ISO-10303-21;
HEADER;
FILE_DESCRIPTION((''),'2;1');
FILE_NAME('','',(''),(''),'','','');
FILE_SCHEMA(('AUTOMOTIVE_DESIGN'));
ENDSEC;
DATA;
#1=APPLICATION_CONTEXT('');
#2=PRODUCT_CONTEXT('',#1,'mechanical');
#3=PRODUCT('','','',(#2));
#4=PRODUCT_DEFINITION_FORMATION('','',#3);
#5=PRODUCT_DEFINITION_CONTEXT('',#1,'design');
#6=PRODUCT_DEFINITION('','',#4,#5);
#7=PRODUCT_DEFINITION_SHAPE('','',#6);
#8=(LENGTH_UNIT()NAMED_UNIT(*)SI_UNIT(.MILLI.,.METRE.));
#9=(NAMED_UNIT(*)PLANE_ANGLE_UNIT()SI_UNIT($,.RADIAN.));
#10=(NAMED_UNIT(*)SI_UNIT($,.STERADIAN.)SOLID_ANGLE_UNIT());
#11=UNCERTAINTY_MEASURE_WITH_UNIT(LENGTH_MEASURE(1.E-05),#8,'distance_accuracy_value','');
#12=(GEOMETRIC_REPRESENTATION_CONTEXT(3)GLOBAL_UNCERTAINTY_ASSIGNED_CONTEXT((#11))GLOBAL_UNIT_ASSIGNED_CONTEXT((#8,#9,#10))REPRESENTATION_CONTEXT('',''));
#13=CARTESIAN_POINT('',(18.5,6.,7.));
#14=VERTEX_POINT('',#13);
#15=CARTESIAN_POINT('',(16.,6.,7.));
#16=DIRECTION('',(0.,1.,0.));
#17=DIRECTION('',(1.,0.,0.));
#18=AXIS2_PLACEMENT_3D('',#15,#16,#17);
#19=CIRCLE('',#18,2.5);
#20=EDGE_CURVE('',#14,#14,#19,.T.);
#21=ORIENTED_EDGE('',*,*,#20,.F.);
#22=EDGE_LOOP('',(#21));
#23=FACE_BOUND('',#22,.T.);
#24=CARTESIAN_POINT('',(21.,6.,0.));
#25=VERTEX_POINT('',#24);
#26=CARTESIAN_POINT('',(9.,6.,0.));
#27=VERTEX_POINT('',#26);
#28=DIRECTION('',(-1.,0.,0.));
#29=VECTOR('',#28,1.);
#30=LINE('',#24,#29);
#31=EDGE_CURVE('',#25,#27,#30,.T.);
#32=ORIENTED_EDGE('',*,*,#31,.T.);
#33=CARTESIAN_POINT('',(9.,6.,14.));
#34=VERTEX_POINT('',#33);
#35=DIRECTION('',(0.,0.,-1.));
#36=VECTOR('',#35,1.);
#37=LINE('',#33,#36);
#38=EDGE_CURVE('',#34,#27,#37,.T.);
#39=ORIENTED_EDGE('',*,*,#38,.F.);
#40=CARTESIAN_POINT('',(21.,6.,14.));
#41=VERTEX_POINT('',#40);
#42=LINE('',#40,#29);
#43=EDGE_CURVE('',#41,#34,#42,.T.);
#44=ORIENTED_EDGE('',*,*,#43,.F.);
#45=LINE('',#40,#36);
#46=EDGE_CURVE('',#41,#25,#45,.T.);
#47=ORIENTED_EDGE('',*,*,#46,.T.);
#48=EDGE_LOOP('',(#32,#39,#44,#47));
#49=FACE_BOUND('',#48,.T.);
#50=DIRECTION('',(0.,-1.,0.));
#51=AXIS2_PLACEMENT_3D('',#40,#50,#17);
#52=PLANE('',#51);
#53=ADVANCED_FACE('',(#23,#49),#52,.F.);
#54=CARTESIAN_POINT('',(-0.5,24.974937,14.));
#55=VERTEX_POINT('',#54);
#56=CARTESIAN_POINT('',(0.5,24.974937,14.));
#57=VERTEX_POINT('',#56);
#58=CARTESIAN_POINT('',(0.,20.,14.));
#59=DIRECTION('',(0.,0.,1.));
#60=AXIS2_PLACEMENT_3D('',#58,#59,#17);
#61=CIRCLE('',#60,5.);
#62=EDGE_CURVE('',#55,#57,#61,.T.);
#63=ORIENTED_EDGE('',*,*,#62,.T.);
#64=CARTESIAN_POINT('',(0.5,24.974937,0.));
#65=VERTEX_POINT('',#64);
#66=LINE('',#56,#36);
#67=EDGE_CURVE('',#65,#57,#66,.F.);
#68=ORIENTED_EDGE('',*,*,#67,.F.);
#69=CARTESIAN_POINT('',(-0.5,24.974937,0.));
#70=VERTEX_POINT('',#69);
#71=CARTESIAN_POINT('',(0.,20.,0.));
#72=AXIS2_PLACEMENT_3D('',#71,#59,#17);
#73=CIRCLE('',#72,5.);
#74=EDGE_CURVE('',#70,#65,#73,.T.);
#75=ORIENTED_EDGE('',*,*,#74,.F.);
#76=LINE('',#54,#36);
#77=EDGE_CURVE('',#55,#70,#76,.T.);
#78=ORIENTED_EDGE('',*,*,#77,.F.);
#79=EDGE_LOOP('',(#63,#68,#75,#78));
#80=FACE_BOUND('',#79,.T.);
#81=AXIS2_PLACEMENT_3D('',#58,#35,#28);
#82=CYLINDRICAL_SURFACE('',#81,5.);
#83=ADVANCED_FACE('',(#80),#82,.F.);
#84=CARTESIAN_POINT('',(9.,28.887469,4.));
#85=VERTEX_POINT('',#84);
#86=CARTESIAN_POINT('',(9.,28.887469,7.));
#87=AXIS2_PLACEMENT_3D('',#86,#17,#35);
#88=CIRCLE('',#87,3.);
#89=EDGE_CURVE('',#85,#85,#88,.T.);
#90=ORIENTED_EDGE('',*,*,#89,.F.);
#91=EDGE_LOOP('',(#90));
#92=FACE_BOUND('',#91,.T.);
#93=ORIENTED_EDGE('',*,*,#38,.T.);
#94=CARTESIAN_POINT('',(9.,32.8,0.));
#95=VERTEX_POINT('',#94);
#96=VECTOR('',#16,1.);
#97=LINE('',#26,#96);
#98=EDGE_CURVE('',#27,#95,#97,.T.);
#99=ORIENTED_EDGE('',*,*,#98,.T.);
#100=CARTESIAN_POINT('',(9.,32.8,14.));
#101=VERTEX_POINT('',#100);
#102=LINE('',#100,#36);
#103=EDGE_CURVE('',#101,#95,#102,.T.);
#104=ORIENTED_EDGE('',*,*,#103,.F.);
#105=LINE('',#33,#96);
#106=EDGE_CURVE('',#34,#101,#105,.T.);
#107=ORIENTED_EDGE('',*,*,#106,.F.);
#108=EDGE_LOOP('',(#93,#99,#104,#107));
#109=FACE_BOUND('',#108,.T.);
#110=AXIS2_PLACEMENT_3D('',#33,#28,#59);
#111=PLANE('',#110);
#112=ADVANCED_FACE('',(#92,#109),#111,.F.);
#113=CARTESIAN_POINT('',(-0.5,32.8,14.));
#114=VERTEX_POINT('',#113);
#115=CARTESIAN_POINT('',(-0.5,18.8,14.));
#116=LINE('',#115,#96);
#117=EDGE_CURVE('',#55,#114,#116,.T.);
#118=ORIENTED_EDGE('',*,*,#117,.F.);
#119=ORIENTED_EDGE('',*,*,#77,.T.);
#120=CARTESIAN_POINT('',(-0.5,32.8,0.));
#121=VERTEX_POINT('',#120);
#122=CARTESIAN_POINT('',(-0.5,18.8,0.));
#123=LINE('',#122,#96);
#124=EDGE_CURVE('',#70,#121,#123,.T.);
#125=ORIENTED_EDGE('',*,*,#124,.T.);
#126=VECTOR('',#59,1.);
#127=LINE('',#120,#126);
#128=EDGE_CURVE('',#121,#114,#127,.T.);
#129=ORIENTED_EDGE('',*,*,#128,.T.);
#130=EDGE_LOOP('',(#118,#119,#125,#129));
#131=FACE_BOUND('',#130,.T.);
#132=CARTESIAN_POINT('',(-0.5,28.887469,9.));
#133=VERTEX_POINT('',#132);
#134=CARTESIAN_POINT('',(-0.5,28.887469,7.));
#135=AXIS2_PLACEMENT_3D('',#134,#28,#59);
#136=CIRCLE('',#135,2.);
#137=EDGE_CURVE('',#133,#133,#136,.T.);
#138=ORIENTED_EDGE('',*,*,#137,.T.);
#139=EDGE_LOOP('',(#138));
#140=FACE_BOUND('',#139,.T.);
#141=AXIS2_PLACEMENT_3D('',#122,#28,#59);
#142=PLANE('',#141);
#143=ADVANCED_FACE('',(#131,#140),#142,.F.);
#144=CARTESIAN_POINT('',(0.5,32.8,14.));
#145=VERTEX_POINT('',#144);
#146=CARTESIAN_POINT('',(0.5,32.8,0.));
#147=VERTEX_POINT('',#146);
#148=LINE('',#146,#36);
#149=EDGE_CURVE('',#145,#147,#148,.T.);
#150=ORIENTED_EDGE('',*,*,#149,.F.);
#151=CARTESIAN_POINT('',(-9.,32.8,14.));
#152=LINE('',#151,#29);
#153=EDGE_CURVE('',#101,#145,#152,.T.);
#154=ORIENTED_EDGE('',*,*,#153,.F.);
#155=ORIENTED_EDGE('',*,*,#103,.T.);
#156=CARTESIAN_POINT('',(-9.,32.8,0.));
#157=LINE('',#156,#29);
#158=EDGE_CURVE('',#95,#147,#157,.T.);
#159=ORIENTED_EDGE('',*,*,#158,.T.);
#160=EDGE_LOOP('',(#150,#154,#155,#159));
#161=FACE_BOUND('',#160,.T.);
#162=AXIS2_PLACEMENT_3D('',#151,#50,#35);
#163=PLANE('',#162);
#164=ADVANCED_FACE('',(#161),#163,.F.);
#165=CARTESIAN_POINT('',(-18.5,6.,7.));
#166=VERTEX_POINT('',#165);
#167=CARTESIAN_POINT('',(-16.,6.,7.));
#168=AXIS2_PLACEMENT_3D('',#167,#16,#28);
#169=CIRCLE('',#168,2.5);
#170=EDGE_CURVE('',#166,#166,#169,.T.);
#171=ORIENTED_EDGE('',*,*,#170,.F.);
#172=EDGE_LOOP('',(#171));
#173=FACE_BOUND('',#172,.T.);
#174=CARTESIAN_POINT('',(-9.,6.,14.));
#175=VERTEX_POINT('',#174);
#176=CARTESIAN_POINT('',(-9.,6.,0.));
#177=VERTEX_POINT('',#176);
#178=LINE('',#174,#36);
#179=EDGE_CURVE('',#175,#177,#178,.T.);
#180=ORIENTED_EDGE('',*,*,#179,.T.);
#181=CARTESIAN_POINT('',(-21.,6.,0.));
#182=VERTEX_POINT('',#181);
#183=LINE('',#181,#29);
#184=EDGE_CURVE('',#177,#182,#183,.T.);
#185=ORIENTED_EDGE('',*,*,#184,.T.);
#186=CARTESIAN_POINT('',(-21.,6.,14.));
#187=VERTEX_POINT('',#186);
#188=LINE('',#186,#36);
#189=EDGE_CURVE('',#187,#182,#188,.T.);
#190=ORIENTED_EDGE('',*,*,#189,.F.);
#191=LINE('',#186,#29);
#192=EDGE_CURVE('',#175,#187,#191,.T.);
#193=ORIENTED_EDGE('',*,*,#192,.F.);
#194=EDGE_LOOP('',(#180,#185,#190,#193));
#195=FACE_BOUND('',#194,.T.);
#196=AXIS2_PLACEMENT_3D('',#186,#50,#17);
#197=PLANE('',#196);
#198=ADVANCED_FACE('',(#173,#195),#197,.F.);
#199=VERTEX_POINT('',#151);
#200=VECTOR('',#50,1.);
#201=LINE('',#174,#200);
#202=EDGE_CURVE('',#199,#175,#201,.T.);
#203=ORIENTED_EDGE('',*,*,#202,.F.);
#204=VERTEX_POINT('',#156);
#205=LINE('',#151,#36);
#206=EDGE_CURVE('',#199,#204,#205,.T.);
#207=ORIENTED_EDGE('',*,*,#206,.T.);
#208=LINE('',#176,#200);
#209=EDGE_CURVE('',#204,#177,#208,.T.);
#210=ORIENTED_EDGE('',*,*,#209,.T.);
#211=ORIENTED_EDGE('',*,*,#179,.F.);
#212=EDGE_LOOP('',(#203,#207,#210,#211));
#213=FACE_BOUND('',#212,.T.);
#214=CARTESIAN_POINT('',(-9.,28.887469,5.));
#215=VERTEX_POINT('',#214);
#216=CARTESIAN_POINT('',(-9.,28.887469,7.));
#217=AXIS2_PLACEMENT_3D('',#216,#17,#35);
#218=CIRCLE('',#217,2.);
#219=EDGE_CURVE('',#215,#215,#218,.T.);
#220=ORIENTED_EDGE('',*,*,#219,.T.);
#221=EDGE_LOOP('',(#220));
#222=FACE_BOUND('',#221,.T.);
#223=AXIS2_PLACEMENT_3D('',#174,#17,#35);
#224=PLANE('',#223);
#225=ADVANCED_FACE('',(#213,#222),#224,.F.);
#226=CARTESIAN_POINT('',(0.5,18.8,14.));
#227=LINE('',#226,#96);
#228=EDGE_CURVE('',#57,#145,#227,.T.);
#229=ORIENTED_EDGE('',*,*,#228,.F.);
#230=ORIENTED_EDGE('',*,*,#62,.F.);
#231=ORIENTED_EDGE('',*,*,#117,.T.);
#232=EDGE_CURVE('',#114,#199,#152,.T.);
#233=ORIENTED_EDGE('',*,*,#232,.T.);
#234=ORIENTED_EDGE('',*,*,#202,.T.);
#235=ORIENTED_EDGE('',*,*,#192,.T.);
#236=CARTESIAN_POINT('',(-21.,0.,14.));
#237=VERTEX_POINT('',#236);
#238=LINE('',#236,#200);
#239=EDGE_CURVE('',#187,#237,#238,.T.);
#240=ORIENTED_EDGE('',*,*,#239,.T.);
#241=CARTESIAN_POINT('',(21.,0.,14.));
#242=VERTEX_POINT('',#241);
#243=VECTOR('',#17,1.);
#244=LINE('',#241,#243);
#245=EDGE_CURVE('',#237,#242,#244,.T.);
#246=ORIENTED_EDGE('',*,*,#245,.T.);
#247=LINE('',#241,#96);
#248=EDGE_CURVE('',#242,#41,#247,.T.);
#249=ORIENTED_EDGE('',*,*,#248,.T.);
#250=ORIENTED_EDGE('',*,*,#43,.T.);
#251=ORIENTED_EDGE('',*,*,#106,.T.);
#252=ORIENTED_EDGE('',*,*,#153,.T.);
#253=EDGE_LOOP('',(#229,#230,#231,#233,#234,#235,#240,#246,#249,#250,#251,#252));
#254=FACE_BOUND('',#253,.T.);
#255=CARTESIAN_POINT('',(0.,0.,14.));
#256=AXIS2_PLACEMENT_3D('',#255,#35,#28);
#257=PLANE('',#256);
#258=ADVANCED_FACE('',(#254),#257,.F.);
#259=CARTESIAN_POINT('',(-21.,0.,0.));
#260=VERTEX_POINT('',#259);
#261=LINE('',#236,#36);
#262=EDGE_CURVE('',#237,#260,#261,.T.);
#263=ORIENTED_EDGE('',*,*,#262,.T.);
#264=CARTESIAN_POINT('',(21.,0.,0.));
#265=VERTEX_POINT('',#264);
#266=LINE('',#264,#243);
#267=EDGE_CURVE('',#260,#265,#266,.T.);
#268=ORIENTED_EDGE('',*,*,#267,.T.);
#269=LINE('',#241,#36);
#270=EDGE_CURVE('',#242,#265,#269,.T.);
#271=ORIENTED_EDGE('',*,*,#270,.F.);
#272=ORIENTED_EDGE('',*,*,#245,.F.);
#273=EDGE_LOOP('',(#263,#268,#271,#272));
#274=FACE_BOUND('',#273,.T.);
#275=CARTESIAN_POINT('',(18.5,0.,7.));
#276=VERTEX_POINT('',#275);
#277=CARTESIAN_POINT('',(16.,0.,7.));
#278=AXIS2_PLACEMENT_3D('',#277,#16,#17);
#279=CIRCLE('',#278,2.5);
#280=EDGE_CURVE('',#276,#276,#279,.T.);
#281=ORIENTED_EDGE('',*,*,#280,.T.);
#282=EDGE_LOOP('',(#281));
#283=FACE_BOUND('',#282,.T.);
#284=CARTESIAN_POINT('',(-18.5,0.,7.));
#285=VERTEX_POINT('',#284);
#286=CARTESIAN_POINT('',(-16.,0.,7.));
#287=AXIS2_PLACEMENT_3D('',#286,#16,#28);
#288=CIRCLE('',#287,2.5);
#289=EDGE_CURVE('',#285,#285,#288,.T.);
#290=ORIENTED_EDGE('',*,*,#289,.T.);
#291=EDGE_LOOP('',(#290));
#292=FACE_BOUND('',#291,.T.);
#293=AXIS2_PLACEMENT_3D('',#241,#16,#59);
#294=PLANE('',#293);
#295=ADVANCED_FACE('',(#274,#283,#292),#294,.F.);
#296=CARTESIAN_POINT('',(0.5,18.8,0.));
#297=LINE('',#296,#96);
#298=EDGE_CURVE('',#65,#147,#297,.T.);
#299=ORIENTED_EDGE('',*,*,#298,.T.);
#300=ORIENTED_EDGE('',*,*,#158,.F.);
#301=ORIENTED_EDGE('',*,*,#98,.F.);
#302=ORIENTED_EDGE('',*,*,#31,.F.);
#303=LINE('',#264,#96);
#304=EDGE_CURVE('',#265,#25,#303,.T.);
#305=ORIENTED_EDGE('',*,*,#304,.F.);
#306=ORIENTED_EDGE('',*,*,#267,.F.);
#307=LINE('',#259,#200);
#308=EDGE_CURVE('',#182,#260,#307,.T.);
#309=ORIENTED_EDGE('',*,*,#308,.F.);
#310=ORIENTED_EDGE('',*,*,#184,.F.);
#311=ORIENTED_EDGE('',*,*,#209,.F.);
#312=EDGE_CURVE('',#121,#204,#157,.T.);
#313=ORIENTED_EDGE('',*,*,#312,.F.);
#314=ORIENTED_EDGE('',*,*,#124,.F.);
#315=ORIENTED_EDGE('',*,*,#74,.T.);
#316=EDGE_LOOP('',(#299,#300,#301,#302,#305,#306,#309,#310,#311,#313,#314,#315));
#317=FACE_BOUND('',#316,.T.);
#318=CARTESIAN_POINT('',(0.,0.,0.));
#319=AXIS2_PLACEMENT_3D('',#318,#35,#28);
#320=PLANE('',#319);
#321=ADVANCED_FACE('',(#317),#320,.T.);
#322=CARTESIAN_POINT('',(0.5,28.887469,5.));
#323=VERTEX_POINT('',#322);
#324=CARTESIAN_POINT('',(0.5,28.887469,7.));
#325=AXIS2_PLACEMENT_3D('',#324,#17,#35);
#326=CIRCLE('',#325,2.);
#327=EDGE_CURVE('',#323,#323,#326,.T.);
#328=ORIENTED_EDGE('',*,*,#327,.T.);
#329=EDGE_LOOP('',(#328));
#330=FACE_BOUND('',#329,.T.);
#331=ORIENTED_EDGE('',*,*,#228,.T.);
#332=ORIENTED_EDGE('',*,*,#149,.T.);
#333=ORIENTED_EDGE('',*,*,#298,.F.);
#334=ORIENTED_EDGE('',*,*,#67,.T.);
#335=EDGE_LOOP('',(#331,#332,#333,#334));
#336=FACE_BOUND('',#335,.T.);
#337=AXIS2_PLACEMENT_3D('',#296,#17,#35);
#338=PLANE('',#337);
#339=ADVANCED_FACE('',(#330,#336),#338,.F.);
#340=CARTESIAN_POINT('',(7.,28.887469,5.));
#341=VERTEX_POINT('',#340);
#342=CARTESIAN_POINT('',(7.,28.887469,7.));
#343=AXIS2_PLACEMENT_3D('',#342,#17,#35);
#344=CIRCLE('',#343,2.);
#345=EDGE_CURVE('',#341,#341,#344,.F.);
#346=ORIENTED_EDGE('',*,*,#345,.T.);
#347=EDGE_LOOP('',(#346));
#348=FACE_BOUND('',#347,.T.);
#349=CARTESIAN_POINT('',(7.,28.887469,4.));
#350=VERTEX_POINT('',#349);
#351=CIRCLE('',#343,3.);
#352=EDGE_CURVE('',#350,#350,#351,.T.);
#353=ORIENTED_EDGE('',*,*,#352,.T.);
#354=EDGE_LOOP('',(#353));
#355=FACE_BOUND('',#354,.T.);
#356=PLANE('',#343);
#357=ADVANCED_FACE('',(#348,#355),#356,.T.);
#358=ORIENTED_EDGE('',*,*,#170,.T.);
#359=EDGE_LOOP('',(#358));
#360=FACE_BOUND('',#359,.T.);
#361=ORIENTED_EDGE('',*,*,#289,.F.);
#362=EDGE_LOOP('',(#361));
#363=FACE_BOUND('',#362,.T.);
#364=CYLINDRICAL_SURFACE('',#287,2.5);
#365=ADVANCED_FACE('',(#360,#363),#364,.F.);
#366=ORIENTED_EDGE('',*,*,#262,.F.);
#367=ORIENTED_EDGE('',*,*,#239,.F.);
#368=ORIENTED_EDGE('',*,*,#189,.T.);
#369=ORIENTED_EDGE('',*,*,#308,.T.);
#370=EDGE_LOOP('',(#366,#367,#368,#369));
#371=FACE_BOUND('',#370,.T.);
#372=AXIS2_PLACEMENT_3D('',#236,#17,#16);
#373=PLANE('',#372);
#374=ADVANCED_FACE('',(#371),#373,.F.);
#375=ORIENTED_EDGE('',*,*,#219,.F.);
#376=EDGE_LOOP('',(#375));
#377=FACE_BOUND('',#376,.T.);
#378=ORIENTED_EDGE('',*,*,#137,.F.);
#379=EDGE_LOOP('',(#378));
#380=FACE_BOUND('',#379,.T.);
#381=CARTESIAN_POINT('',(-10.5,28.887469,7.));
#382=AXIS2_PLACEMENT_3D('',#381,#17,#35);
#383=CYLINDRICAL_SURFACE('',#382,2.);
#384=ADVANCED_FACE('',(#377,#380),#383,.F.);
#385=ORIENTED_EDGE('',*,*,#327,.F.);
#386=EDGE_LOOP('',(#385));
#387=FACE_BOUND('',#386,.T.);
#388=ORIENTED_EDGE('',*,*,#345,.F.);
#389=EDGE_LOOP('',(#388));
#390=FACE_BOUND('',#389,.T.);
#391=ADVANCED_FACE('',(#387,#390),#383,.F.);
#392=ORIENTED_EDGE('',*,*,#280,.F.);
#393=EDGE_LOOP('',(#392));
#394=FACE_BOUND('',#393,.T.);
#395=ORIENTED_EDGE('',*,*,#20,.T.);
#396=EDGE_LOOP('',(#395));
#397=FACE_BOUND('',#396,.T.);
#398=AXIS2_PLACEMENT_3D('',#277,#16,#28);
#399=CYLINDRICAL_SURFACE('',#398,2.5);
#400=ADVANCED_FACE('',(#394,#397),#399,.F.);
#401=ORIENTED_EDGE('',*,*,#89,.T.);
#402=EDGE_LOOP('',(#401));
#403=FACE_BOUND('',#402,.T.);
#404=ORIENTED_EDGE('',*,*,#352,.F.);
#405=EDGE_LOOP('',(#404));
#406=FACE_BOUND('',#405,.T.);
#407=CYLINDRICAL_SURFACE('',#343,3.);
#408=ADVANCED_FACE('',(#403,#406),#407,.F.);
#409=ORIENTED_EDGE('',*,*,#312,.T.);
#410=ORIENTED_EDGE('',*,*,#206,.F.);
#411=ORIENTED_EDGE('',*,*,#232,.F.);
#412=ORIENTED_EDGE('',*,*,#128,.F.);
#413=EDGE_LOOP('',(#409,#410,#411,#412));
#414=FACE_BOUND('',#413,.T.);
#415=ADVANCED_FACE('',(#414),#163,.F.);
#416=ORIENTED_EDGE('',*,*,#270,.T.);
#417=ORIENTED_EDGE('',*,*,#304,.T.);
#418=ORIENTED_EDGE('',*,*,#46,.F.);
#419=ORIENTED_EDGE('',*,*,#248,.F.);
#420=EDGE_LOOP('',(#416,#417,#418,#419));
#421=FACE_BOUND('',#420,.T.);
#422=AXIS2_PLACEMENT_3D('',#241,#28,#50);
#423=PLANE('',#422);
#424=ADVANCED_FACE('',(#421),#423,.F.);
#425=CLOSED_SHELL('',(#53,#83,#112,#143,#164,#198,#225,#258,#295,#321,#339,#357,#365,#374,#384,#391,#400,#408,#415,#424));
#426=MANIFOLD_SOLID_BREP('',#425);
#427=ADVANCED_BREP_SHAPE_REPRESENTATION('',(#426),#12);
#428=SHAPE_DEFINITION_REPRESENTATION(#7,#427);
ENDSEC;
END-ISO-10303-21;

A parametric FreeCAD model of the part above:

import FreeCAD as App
import Part
import Sketcher
Q = App.Units.Quantity


def add_polygon(sketch, points):
    """Adds a closed chain of lines whose ends are joined by coincident constraints."""
    first, n = sketch.GeometryCount, len(points)
    for a, b in zip(points, points[1:] + points[:1]):
        sketch.addGeometry(Part.LineSegment(App.Vector(*a, 0), App.Vector(*b, 0)), False)
    for i in range(n):
        sketch.addConstraint(Sketcher.Constraint("Coincident", first + i, 2, first + (i + 1) % n, 1))

doc = App.newDocument("Part")
body = doc.addObject("PartDesign::Body", "Body")

sketch1 = body.newObject("Sketcher::SketchObject", "Sketch")
sketch1.AttachmentSupport = (doc.getObject("XY_Plane"), [""])
sketch1.MapMode = "FlatFace"
add_polygon(sketch1, [(-21, 0), (21, 0), (21, 6), (9, 6), (9, 33), (-9, 33), (-9, 6), (-21, 6)])
sketch1.addGeometry(Part.Circle(App.Vector(0, 20, 0), App.Vector(0, 0, 1), 5), False)
sketch1.addConstraint([
    Sketcher.Constraint("Horizontal", 0),
    Sketcher.Constraint("Vertical", 1),
    Sketcher.Constraint("Horizontal", 2),
    Sketcher.Constraint("Vertical", 3),
    Sketcher.Constraint("Horizontal", 4),
    Sketcher.Constraint("Vertical", 5),
    Sketcher.Constraint("Horizontal", 6),
    Sketcher.Constraint("Vertical", 7),
    Sketcher.Constraint("Symmetric", 0, 2, 7, 2, -1, 1),
    Sketcher.Constraint("Symmetric", 2, 2, 5, 2, -2),
    Sketcher.Constraint("PointOnObject", 8, 3, -2),
    Sketcher.Constraint("Diameter", 8, Q("10 mm")),
    Sketcher.Constraint("DistanceX", 0, 1, 0, 2, Q("42 mm")),
    Sketcher.Constraint("DistanceX", 2, 2, 2, 1, Q("12 mm")),
    Sketcher.Constraint("DistanceY", 1, 1, 1, 2, Q("6 mm")),
    Sketcher.Constraint("DistanceY", 3, 1, 3, 2, Q("26.8 mm")),
    Sketcher.Constraint("DistanceY", -1, 1, 8, 3, Q("20 mm")),
])
pad1 = body.newObject("PartDesign::Pad", "Pad")
pad1.Profile = sketch1
pad1.Length = 14

sketch2 = body.newObject("Sketcher::SketchObject", "Sketch001")
sketch2.AttachmentSupport = (doc.getObject("XZ_Plane"), [""])
sketch2.MapMode = "FlatFace"
sketch2.AttachmentOffset = App.Placement(App.Vector(0, 0, -6), App.Rotation())
sketch2.addGeometry([
    Part.Circle(App.Vector(-16, 7, 0), App.Vector(0, 0, 1), 2.5),
    Part.Circle(App.Vector(16, 7, 0), App.Vector(0, 0, 1), 2.5),
], False)
sketch2.addConstraint([
    Sketcher.Constraint("Equal", 0, 1),
    Sketcher.Constraint("Symmetric", 0, 3, 1, 3, -2),
    Sketcher.Constraint("Diameter", 0, Q("5 mm")),
    Sketcher.Constraint("DistanceX", 0, 3, -1, 1, Q("16 mm")),
    Sketcher.Constraint("DistanceY", -1, 1, 0, 3, Q("7 mm")),
])
pocket1 = body.newObject("PartDesign::Pocket", "Pocket")
pocket1.Profile = sketch2
pocket1.Type = "ThroughAll"
pocket1.Reversed = True

sketch3 = body.newObject("Sketcher::SketchObject", "Sketch002")
sketch3.AttachmentSupport = (doc.getObject("XZ_Plane"), [""])
sketch3.MapMode = "FlatFace"
sketch3.AttachmentOffset = App.Placement(App.Vector(0, 0, -32.8), App.Rotation())
add_polygon(sketch3, [(-0.5, 0), (-0.5, 14), (0.5, 14), (0.5, 0)])
sketch3.addConstraint([
    Sketcher.Constraint("Vertical", 0),
    Sketcher.Constraint("Horizontal", 1),
    Sketcher.Constraint("Vertical", 2),
    Sketcher.Constraint("Horizontal", 3),
    Sketcher.Constraint("Symmetric", 2, 2, 3, 2, -1, 1),
    Sketcher.Constraint("DistanceX", 1, 1, 1, 2, Q("1 mm")),
    Sketcher.Constraint("DistanceY", 0, 1, 0, 2, Q("14 mm")),
])
pocket2 = body.newObject("PartDesign::Pocket", "Pocket001")
pocket2.Profile = sketch3
pocket2.Length = 14
pocket2.Reversed = True

sketch4 = body.newObject("Sketcher::SketchObject", "Sketch003")
sketch4.AttachmentSupport = (doc.getObject("YZ_Plane"), [""])
sketch4.MapMode = "FlatFace"
sketch4.AttachmentOffset = App.Placement(App.Vector(0, 0, -0.5), App.Rotation())
sketch4.addGeometry(Part.Circle(App.Vector(28.9, 7, 0), App.Vector(0, 0, 1), 2), False)
sketch4.addConstraint([
    Sketcher.Constraint("Diameter", 0, Q("4 mm")),
    Sketcher.Constraint("DistanceY", -1, 1, 0, 3, Q("7 mm")),
    Sketcher.Constraint("DistanceX", -1, 1, 0, 3, Q("28.887469 mm")),
])
pocket3 = body.newObject("PartDesign::Pocket", "Pocket002")
pocket3.Profile = sketch4
pocket3.Length = 20
pocket3.Midplane = True

sketch5 = body.newObject("Sketcher::SketchObject", "Sketch004")
sketch5.AttachmentSupport = (doc.getObject("YZ_Plane"), [""])
sketch5.MapMode = "FlatFace"
sketch5.AttachmentOffset = App.Placement(App.Vector(0, 0, 9), App.Rotation())
sketch5.addGeometry(Part.Circle(App.Vector(28.9, 7, 0), App.Vector(0, 0, 1), 3), False)
sketch5.addConstraint([
    Sketcher.Constraint("Diameter", 0, Q("6 mm")),
    Sketcher.Constraint("DistanceY", -1, 1, 0, 3, Q("7 mm")),
    Sketcher.Constraint("DistanceX", -1, 1, 0, 3, Q("28.887469 mm")),
])
pocket4 = body.newObject("PartDesign::Pocket", "Pocket003")
pocket4.Profile = sketch5
pocket4.Length = 2

doc.recompute()
